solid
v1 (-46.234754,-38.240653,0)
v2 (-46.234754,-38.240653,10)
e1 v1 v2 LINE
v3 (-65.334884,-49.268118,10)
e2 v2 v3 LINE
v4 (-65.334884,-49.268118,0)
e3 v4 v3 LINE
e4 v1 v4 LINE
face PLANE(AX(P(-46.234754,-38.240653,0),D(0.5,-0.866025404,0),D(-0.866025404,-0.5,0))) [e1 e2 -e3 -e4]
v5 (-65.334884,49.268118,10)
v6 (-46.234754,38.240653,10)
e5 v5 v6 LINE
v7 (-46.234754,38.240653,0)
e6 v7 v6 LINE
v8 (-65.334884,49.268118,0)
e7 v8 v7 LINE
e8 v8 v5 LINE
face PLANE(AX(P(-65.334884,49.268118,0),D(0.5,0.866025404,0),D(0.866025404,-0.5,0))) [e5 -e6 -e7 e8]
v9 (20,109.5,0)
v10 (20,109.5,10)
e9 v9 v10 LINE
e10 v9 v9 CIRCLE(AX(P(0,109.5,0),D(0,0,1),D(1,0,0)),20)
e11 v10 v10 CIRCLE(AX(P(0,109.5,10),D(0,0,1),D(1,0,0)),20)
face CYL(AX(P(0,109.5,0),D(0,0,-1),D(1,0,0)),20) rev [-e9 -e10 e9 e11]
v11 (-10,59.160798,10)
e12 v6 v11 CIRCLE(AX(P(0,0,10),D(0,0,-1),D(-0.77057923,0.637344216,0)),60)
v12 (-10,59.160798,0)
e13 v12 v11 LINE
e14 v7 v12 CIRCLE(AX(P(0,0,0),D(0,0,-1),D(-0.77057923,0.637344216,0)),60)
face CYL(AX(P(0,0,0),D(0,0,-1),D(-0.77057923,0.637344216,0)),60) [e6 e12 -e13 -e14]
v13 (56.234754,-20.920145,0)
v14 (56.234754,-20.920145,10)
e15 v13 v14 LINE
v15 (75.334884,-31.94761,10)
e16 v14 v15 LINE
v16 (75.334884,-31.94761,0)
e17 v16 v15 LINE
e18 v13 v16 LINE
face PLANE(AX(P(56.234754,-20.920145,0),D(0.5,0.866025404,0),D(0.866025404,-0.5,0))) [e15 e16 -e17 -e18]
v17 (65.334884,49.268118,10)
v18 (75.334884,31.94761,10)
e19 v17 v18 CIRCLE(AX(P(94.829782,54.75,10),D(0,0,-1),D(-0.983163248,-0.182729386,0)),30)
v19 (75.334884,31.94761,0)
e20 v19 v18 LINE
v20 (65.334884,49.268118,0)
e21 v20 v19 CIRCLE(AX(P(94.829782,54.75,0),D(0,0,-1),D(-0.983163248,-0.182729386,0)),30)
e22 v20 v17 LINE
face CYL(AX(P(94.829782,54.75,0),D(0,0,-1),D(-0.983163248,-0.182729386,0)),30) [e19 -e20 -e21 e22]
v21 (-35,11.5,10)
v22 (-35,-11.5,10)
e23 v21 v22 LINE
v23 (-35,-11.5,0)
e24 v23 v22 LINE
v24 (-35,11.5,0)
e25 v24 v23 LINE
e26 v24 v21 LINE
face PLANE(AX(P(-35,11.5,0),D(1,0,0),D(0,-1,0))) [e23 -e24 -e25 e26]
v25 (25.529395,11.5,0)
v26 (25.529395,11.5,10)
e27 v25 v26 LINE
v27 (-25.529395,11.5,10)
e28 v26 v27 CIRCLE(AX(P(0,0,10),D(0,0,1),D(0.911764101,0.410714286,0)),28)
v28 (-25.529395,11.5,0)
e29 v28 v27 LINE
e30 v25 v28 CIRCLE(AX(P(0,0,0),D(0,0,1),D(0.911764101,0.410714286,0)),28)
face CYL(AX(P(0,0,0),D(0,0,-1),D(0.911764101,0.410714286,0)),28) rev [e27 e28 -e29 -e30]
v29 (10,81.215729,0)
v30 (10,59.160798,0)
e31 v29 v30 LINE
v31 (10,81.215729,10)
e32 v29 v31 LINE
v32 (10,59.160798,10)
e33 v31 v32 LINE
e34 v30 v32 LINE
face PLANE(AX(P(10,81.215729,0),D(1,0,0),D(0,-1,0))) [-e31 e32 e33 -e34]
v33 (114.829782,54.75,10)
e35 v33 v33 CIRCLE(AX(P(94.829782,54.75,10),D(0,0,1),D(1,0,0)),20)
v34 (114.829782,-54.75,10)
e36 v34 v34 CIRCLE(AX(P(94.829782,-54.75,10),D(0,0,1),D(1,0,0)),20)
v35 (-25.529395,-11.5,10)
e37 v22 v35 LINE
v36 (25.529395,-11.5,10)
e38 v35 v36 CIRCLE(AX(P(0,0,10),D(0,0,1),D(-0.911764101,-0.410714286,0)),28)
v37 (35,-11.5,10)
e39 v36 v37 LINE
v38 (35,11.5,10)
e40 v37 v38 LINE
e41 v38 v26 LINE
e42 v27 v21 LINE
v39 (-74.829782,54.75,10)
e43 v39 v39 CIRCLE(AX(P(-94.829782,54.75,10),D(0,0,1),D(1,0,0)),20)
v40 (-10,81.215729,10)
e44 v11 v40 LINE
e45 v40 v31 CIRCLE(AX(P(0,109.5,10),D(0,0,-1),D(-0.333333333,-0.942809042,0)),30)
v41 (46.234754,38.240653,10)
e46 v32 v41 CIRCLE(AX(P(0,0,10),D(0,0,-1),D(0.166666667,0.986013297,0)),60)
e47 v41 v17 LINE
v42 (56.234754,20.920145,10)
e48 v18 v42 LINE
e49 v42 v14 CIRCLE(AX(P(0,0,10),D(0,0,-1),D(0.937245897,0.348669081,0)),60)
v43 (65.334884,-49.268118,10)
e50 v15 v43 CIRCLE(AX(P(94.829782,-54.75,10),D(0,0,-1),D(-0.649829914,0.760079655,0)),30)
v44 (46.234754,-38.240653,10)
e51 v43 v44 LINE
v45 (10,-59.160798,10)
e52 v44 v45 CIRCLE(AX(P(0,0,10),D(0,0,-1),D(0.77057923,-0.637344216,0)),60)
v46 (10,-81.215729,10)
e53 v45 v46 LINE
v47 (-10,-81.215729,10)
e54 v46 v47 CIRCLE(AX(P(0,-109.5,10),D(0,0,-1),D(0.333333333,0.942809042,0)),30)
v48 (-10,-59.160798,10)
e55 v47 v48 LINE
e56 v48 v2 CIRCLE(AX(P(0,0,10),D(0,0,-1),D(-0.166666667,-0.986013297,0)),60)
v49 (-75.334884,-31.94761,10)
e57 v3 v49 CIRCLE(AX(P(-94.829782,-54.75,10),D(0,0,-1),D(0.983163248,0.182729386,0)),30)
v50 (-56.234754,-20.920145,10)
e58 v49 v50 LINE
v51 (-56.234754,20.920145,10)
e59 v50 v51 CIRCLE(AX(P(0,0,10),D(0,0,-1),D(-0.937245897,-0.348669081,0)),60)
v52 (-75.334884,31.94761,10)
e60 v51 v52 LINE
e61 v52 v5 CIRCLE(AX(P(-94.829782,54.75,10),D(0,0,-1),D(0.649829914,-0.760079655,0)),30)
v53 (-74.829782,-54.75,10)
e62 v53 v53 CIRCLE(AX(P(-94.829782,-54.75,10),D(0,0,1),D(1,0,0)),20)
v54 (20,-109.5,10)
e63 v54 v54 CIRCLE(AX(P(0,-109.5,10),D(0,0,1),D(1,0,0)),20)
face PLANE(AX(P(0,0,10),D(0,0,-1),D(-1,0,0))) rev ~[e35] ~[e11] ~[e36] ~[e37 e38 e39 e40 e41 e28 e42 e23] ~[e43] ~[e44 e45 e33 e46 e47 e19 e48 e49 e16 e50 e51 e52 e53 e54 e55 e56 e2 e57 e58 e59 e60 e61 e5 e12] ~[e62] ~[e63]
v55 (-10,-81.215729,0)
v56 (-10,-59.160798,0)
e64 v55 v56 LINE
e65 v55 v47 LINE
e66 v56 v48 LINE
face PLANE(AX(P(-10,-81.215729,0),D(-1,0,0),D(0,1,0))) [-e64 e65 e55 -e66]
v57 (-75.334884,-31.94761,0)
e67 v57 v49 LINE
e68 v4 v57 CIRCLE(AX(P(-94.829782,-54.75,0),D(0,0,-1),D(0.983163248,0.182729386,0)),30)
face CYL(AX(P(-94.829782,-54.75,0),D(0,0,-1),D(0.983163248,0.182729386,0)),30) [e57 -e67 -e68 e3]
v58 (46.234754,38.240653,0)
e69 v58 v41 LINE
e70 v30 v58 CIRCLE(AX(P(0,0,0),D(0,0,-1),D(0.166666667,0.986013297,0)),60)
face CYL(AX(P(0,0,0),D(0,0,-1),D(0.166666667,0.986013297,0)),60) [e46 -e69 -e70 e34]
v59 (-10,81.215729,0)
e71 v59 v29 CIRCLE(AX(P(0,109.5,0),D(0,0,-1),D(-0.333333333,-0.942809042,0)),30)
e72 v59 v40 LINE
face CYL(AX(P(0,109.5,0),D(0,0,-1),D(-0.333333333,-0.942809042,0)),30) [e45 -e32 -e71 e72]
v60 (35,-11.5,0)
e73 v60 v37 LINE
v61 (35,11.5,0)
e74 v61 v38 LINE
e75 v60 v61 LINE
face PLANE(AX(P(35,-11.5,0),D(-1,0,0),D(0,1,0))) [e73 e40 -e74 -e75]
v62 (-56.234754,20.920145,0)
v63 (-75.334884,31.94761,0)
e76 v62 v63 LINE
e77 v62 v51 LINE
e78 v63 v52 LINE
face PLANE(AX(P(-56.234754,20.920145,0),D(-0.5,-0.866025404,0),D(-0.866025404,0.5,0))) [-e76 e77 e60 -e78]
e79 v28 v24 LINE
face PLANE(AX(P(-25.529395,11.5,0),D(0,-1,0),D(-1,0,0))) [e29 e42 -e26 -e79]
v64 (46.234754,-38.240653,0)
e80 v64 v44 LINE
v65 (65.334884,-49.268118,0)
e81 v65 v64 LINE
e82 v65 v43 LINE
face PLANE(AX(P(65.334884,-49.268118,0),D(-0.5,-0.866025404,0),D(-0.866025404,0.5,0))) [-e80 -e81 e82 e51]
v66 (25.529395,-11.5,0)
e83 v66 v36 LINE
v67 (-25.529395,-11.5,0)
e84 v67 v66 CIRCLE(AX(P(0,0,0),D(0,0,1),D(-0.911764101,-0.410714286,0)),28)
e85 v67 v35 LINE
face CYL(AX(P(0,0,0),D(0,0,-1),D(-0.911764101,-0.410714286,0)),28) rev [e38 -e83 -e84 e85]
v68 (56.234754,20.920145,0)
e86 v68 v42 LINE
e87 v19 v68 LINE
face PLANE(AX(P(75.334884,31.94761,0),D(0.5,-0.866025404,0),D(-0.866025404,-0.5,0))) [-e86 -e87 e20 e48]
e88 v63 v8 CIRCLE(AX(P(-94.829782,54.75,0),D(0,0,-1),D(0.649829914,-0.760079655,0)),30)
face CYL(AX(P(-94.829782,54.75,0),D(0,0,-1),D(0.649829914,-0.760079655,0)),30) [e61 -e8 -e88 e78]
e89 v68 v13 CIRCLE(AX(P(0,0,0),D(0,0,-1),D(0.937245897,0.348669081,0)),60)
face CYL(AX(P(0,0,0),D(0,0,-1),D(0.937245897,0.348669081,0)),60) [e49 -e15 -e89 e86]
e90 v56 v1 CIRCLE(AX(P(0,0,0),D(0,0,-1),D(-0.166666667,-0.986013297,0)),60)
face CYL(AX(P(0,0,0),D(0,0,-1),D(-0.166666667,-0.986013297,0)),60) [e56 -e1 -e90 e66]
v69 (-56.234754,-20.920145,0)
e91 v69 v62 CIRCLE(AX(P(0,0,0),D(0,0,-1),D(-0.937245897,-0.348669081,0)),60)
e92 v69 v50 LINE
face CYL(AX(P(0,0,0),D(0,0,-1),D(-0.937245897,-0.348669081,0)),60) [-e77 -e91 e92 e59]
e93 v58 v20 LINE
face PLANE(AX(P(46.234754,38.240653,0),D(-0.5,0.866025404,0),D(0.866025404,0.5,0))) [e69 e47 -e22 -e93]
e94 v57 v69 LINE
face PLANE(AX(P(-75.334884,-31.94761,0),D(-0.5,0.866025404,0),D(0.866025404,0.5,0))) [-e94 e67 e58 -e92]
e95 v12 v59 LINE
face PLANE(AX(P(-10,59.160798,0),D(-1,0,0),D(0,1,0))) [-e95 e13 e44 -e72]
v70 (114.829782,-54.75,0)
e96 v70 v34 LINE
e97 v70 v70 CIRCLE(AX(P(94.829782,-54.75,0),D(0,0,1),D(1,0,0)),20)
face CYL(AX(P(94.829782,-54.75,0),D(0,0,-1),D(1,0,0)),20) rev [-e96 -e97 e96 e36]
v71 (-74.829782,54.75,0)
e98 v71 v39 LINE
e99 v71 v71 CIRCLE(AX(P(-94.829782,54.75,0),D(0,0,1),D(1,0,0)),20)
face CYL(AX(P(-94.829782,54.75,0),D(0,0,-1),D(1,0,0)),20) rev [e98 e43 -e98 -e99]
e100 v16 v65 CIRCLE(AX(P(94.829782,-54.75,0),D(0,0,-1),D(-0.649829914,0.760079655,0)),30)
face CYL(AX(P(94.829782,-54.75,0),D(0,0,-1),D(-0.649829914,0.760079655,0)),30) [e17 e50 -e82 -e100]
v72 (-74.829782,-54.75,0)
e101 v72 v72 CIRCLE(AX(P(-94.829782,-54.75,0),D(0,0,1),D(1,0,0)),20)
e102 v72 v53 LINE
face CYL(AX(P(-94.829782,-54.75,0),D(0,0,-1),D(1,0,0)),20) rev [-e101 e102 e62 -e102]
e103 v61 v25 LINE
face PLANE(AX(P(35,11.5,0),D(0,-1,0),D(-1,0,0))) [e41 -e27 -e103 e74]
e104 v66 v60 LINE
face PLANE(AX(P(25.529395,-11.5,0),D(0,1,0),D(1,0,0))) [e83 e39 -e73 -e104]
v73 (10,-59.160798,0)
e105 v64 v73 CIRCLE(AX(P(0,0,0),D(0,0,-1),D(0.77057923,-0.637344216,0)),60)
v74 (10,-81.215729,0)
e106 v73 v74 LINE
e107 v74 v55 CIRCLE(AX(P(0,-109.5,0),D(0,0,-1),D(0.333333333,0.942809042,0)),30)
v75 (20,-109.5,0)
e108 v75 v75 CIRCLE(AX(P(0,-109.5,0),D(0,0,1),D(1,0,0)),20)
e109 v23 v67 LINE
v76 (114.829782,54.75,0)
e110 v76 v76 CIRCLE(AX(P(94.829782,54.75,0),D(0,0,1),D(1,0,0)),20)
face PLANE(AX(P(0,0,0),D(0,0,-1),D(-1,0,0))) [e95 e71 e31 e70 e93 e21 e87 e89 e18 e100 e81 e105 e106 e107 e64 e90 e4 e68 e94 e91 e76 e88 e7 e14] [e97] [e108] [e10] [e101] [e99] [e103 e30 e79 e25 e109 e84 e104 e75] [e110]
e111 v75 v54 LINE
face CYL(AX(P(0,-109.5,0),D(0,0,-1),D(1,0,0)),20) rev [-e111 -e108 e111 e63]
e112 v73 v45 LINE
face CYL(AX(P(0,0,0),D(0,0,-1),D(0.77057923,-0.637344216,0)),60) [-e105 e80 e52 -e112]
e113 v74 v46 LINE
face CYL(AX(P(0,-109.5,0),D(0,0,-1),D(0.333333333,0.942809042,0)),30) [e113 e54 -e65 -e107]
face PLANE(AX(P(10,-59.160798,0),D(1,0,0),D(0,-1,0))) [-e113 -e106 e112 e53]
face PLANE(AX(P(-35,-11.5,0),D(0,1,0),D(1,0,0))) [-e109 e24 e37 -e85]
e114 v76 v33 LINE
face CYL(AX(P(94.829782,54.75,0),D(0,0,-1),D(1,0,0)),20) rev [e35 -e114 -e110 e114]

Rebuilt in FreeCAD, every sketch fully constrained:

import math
import FreeCAD as App
import Part
import Sketcher

V = App.Vector
Q = App.Units.Quantity

doc = App.newDocument("Part")
body = doc.addObject("PartDesign::Body", "Body")

# Sketch on XY plane
sketch1 = doc.addObject("Sketcher::SketchObject", "Sketch")
body.addObject(sketch1)
sketch1.AttachmentSupport = (doc.XY_Plane, [""])
sketch1.MapMode = "FlatFace"
sketch1.addGeometry([
    Part.LineSegment(V(75, -32, 0), V(56, -21, 0)),  # 0
    Part.ArcOfCircle(Part.Circle(V(0, 0, 0), V(0, 0, 1), 60), math.radians(-20), math.radians(20)),  # 1
    Part.LineSegment(V(56, 21, 0), V(75, 32, 0)),  # 2
    Part.ArcOfCircle(Part.Circle(V(95, 55, 0), V(0, 0, 1), 30), math.radians(-131), math.radians(191)),  # 3
    Part.LineSegment(V(65, 49, 0), V(46, 38, 0)),  # 4
    Part.ArcOfCircle(Part.Circle(V(0, 0, 0), V(0, 0, 1), 60), math.radians(40), math.radians(80)),  # 5
    Part.LineSegment(V(10, 59, 0), V(10, 81, 0)),  # 6
    Part.ArcOfCircle(Part.Circle(V(0, 110, 0), V(0, 0, 1), 30), math.radians(-71), math.radians(251)),  # 7
    Part.LineSegment(V(-10, 81, 0), V(-10, 59, 0)),  # 8
    Part.ArcOfCircle(Part.Circle(V(0, 0, 0), V(0, 0, 1), 60), math.radians(100), math.radians(140)),  # 9
    Part.LineSegment(V(-46, 38, 0), V(-65, 49, 0)),  # 10
    Part.ArcOfCircle(Part.Circle(V(-95, 55, 0), V(0, 0, 1), 30), math.radians(-11), math.radians(311)),  # 11
    Part.LineSegment(V(-75, 32, 0), V(-56, 21, 0)),  # 12
    Part.ArcOfCircle(Part.Circle(V(0, 0, 0), V(0, 0, 1), 60), math.radians(160), math.radians(200)),  # 13
    Part.LineSegment(V(-56, -21, 0), V(-75, -32, 0)),  # 14
    Part.ArcOfCircle(Part.Circle(V(-95, -55, 0), V(0, 0, 1), 30), math.radians(49), math.radians(371)),  # 15
    Part.LineSegment(V(-65, -49, 0), V(-46, -38, 0)),  # 16
    Part.ArcOfCircle(Part.Circle(V(0, 0, 0), V(0, 0, 1), 60), math.radians(-140), math.radians(-100)),  # 17
    Part.LineSegment(V(-10, -59, 0), V(-10, -81, 0)),  # 18
    Part.ArcOfCircle(Part.Circle(V(0, -110, 0), V(0, 0, 1), 30), math.radians(109), math.radians(431)),  # 19
    Part.LineSegment(V(10, -81, 0), V(10, -59, 0)),  # 20
    Part.ArcOfCircle(Part.Circle(V(0, 0, 0), V(0, 0, 1), 60), math.radians(-80), math.radians(-40)),  # 21
    Part.LineSegment(V(46, -38, 0), V(65, -49, 0)),  # 22
    Part.ArcOfCircle(Part.Circle(V(95, -55, 0), V(0, 0, 1), 30), math.radians(169), math.radians(491)),  # 23
    Part.Circle(V(0, -110, 0), V(0, 0, 1), 20),  # 24
    Part.Circle(V(95, -55, 0), V(0, 0, 1), 20),  # 25
    Part.Circle(V(-95, -55, 0), V(0, 0, 1), 20),  # 26
    Part.Circle(V(95, 55, 0), V(0, 0, 1), 20),  # 27
    Part.LineSegment(V(26, 12, 0), V(35, 12, 0)),  # 28
    Part.LineSegment(V(35, 12, 0), V(35, -12, 0)),  # 29
    Part.LineSegment(V(35, -12, 0), V(26, -12, 0)),  # 30
    Part.ArcOfCircle(Part.Circle(V(0, 0, 0), V(0, 0, 1), 28), math.radians(-156), math.radians(-24)),  # 31
    Part.LineSegment(V(-26, -12, 0), V(-35, -12, 0)),  # 32
    Part.LineSegment(V(-35, -12, 0), V(-35, 12, 0)),  # 33
    Part.LineSegment(V(-35, 12, 0), V(-26, 12, 0)),  # 34
    Part.ArcOfCircle(Part.Circle(V(0, 0, 0), V(0, 0, 1), 28), math.radians(24), math.radians(156)),  # 35
    Part.Circle(V(0, 110, 0), V(0, 0, 1), 20),  # 36
    Part.Circle(V(-95, 55, 0), V(0, 0, 1), 20),  # 37
], False)
sketch1.addConstraint([
    Sketcher.Constraint("Coincident", 0, 2, 1, 1),
    Sketcher.Constraint("Coincident", 1, 2, 2, 1),
    Sketcher.Constraint("Coincident", 2, 2, 3, 1),
    Sketcher.Constraint("Coincident", 3, 2, 4, 1),
    Sketcher.Constraint("Coincident", 4, 2, 5, 1),
    Sketcher.Constraint("Coincident", 5, 2, 6, 1),
    Sketcher.Constraint("Coincident", 6, 2, 7, 1),
    Sketcher.Constraint("Coincident", 7, 2, 8, 1),
    Sketcher.Constraint("Coincident", 8, 2, 9, 1),
    Sketcher.Constraint("Coincident", 9, 2, 10, 1),
    Sketcher.Constraint("Coincident", 10, 2, 11, 1),
    Sketcher.Constraint("Coincident", 11, 2, 12, 1),
    Sketcher.Constraint("Coincident", 12, 2, 13, 1),
    Sketcher.Constraint("Coincident", 13, 2, 14, 1),
    Sketcher.Constraint("Coincident", 14, 2, 15, 1),
    Sketcher.Constraint("Coincident", 15, 2, 16, 1),
    Sketcher.Constraint("Coincident", 16, 2, 17, 1),
    Sketcher.Constraint("Coincident", 17, 2, 18, 1),
    Sketcher.Constraint("Coincident", 18, 2, 19, 1),
    Sketcher.Constraint("Coincident", 19, 2, 20, 1),
    Sketcher.Constraint("Coincident", 20, 2, 21, 1),
    Sketcher.Constraint("Coincident", 21, 2, 22, 1),
    Sketcher.Constraint("Coincident", 22, 2, 23, 1),
    Sketcher.Constraint("Coincident", 23, 2, 0, 1),
    Sketcher.Constraint("Coincident", 28, 2, 29, 1),
    Sketcher.Constraint("Coincident", 29, 2, 30, 1),
    Sketcher.Constraint("Coincident", 30, 2, 31, 2),
    Sketcher.Constraint("Coincident", 31, 1, 32, 1),
    Sketcher.Constraint("Coincident", 32, 2, 33, 1),
    Sketcher.Constraint("Coincident", 33, 2, 34, 1),
    Sketcher.Constraint("Coincident", 34, 2, 35, 2),
    Sketcher.Constraint("Coincident", 35, 1, 28, 1),
    Sketcher.Constraint("Vertical", 6),
    Sketcher.Constraint("Vertical", 8),
    Sketcher.Constraint("Vertical", 18),
    Sketcher.Constraint("Vertical", 20),
    Sketcher.Constraint("Horizontal", 28),
    Sketcher.Constraint("Vertical", 29),
    Sketcher.Constraint("Horizontal", 30),
    Sketcher.Constraint("Horizontal", 32),
    Sketcher.Constraint("Vertical", 33),
    Sketcher.Constraint("Horizontal", 34),
    Sketcher.Constraint("Coincident", 1, 3, -1, 1),
    Sketcher.Constraint("Coincident", 5, 3, -1, 1),
    Sketcher.Constraint("Coincident", 9, 3, -1, 1),
    Sketcher.Constraint("Coincident", 13, 3, -1, 1),
    Sketcher.Constraint("Coincident", 17, 3, -1, 1),
    Sketcher.Constraint("Coincident", 21, 3, -1, 1),
    Sketcher.Constraint("Coincident", 31, 3, -1, 1),
    Sketcher.Constraint("Coincident", 35, 3, -1, 1),
    Sketcher.Constraint("Coincident", 24, 3, 19, 3),
    Sketcher.Constraint("Coincident", 25, 3, 23, 3),
    Sketcher.Constraint("Coincident", 26, 3, 15, 3),
    Sketcher.Constraint("Coincident", 27, 3, 3, 3),
    Sketcher.Constraint("Coincident", 36, 3, 7, 3),
    Sketcher.Constraint("Coincident", 37, 3, 11, 3),
    Sketcher.Constraint("Equal", 1, 5),
    Sketcher.Constraint("Equal", 3, 7),
    Sketcher.Constraint("Equal", 5, 9),
    Sketcher.Constraint("Equal", 7, 11),
    Sketcher.Constraint("Equal", 9, 13),
    Sketcher.Constraint("Equal", 11, 15),
    Sketcher.Constraint("Equal", 13, 17),
    Sketcher.Constraint("Equal", 15, 19),
    Sketcher.Constraint("Equal", 17, 21),
    Sketcher.Constraint("Equal", 19, 23),
    Sketcher.Constraint("Equal", 24, 25),
    Sketcher.Constraint("Equal", 25, 26),
    Sketcher.Constraint("Equal", 26, 27),
    Sketcher.Constraint("Equal", 31, 35),
    Sketcher.Constraint("Equal", 27, 36),
    Sketcher.Constraint("Equal", 36, 37),
    Sketcher.Constraint("Symmetric", 3, 3, 15, 3, -1, 1),
    Sketcher.Constraint("Symmetric", 7, 3, 19, 3, -1, 1),
    Sketcher.Constraint("Symmetric", 11, 3, 23, 3, -1, 1),
    Sketcher.Constraint("Symmetric", 28, 2, 32, 2, -1, 1),
    Sketcher.Constraint("Symmetric", 3, 3, 11, 3, -2),
    Sketcher.Constraint("Symmetric", 6, 2, 7, 2, -2),
    Sketcher.Constraint("Parallel", 2, 4),
    Sketcher.Constraint("Parallel", 0, 10),
    Sketcher.Constraint("Parallel", 10, 12),
    Sketcher.Constraint("Parallel", 4, 14),
    Sketcher.Constraint("Parallel", 14, 16),
    Sketcher.Constraint("Parallel", 12, 22),
    Sketcher.Constraint("Horizontal", 4, 2, 9, 2),
    Sketcher.Constraint("Horizontal", 3, 2, 10, 2),
    Sketcher.Constraint("Horizontal", 2, 2, 11, 2),
    Sketcher.Constraint("Horizontal", 0, 2, 13, 2),
    Sketcher.Constraint("Horizontal", 18, 2, 19, 2),
    Sketcher.Constraint("Horizontal", 16, 2, 21, 2),
    Sketcher.Constraint("Horizontal", 30, 2, 31, 1),
    Sketcher.Constraint("Horizontal", 28, 2, 33, 2),
    Sketcher.Constraint("Vertical", 0, 2, 1, 2),
    Sketcher.Constraint("Vertical", 10, 2, 15, 2),
    Sketcher.Constraint("Vertical", 8, 2, 17, 2),
    Sketcher.Constraint("Equal", 2, 4),
    Sketcher.Constraint("Diameter", 24, 40.0),
    Sketcher.Constraint("Radius", 1, 60.0),
    Sketcher.Constraint("Radius", 3, 30.0),
    Sketcher.Constraint("Radius", 31, 28.0),
    Sketcher.Constraint("DistanceY", 29, 2, 29, 1, 23.0),
    Sketcher.Constraint("Angle", 0, Q("150 deg")),
    Sketcher.Constraint("DistanceX", -1, 1, 5, 2, 10.0),
    Sketcher.Constraint("DistanceX", -1, 1, 28, 2, 35.0),
    Sketcher.Constraint("DistanceX", 3, 2, 2, 2, 10.0),
    Sketcher.Constraint("DistanceY", -1, 1, 7, 3, 109.5),
    Sketcher.Constraint("DistanceY", 15, 3, 11, 3, 109.5),
    Sketcher.Constraint("Distance", 0, 22.054931),
])
pad1 = doc.addObject("PartDesign::Pad", "Pad")
body.addObject(pad1)
pad1.Profile = sketch1
pad1.Length = 10

doc.recompute()
